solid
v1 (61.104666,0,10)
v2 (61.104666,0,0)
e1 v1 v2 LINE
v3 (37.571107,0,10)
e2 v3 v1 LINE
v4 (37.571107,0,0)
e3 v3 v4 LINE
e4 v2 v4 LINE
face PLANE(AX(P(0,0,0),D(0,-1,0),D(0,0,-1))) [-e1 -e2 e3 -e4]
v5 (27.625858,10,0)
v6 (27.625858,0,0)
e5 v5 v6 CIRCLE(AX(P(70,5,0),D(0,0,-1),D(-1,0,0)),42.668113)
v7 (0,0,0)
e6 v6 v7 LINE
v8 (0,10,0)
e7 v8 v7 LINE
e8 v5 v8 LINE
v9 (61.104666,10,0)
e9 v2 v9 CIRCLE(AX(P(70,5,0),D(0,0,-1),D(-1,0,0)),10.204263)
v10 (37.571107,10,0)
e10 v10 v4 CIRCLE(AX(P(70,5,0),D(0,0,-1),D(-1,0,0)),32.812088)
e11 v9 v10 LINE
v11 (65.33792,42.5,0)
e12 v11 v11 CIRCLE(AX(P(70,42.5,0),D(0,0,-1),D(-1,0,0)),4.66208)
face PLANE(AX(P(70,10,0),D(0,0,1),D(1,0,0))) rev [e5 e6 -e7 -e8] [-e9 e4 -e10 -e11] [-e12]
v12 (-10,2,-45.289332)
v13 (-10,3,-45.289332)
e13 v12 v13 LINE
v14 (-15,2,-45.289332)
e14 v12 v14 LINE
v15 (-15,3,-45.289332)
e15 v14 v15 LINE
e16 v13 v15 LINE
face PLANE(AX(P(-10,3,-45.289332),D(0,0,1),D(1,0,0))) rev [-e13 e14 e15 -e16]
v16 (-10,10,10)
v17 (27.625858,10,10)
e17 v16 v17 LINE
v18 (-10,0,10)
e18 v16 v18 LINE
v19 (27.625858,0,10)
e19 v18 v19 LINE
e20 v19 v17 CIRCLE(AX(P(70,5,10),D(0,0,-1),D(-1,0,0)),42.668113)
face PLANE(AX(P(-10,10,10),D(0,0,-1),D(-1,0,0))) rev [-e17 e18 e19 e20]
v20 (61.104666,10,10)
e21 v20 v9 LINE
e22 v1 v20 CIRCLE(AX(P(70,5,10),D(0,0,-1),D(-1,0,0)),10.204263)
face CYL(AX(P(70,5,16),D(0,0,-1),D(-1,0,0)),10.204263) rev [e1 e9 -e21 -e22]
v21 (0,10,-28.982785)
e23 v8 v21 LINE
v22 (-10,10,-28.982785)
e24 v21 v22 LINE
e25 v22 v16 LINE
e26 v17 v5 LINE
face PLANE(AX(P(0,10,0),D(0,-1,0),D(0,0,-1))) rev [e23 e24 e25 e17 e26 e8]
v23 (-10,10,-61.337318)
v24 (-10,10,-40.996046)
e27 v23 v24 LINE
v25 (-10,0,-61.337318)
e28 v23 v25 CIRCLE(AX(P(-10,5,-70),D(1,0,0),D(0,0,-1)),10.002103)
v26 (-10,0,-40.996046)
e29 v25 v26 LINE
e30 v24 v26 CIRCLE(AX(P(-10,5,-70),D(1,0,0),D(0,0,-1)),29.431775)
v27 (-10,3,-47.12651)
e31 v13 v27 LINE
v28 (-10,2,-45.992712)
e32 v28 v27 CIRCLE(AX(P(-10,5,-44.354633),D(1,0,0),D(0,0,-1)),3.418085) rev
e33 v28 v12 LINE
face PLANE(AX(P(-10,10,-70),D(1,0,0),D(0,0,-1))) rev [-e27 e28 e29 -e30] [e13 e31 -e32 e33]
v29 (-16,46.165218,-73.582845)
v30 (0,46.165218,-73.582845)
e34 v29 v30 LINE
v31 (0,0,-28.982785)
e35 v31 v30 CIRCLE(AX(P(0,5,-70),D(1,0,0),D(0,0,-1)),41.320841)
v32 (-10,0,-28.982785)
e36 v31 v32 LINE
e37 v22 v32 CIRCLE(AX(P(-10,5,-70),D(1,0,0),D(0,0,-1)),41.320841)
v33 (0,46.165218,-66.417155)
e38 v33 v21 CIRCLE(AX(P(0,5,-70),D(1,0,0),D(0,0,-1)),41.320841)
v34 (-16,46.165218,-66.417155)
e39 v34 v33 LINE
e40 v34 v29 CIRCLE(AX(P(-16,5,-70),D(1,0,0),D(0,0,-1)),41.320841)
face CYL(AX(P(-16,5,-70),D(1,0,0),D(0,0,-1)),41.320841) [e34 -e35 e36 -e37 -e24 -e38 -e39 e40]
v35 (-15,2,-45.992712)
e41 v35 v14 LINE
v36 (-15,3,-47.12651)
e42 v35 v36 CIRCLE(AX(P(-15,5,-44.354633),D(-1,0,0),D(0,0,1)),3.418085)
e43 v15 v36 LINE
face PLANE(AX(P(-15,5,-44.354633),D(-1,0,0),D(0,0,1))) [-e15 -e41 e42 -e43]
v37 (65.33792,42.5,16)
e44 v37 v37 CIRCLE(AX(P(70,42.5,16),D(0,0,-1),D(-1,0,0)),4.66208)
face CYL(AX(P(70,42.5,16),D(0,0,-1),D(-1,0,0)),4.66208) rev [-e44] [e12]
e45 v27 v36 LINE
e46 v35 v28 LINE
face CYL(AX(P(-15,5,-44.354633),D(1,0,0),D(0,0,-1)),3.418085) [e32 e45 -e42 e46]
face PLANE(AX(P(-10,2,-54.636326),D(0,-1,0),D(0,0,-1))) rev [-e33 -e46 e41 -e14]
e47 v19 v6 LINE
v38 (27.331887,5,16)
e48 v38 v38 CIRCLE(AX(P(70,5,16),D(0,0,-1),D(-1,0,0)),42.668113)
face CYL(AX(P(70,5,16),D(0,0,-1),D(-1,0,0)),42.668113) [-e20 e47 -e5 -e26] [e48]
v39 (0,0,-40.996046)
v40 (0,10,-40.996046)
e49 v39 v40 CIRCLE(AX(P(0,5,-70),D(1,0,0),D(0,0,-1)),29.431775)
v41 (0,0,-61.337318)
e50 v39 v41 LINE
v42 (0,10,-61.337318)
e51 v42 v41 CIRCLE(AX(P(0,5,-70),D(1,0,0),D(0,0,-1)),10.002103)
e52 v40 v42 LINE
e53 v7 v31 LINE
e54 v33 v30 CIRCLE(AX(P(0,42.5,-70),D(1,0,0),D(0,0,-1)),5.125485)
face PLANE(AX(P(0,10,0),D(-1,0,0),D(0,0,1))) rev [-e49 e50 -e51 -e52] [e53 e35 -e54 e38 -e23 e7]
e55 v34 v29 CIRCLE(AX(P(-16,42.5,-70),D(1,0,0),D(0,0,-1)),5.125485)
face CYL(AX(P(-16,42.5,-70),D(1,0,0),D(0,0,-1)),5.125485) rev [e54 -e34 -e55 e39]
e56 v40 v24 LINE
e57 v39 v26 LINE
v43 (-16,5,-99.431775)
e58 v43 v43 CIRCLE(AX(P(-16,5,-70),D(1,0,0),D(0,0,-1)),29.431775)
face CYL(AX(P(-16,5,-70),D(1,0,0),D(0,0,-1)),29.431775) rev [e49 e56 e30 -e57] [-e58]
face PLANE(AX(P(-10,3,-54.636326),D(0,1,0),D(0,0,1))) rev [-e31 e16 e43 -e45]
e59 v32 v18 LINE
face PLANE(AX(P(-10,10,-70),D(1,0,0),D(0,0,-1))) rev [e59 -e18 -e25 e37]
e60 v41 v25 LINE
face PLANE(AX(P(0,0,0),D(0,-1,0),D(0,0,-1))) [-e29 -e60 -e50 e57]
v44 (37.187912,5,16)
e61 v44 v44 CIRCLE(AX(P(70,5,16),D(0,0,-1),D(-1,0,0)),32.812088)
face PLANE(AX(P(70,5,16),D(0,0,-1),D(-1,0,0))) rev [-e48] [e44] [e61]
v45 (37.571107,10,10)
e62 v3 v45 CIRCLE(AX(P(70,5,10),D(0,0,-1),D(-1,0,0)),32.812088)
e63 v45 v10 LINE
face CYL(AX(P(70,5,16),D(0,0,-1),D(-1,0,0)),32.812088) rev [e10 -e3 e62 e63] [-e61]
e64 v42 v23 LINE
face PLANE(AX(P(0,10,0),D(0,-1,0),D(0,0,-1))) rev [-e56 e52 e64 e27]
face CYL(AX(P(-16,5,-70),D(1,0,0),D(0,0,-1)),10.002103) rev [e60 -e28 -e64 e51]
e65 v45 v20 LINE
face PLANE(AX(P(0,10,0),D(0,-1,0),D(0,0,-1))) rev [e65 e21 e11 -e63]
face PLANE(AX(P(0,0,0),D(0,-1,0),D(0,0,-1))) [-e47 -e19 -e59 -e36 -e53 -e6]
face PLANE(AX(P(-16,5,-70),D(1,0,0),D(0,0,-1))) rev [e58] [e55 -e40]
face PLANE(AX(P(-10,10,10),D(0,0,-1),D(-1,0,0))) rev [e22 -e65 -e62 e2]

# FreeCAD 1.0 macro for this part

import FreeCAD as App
import Part
import Sketcher

V = App.Vector
Q = App.Units.Quantity

doc = App.newDocument("Part")
body = doc.addObject("PartDesign::Body", "Body")

# Sketch on XZ plane
sketch1 = body.newObject("Sketcher::SketchObject", "Sketch")
sketch1.AttachmentSupport = (doc.getObject("XZ_Plane"), [""])
sketch1.MapMode = "FlatFace"
sketch1.addGeometry(Part.LineSegment(V(0, 0, 0), V(0, -70, 0)), False)
sketch1.addGeometry(Part.LineSegment(V(0, -70, 0), V(-10, -70, 0)), False)
sketch1.addGeometry(Part.LineSegment(V(-10, -70, 0), V(-10, 10, 0)), False)
sketch1.addGeometry(Part.LineSegment(V(-10, 10, 0), V(70, 10, 0)), False)
sketch1.addGeometry(Part.LineSegment(V(70, 10, 0), V(70, 0, 0)), False)
sketch1.addGeometry(Part.LineSegment(V(70, 0, 0), V(0, 0, 0)), False)
sketch1.addConstraint(Sketcher.Constraint("Coincident", 0, 2, 1, 1))
sketch1.addConstraint(Sketcher.Constraint("Coincident", 1, 2, 2, 1))
sketch1.addConstraint(Sketcher.Constraint("Coincident", 2, 2, 3, 1))
sketch1.addConstraint(Sketcher.Constraint("Coincident", 3, 2, 4, 1))
sketch1.addConstraint(Sketcher.Constraint("Coincident", 4, 2, 5, 1))
sketch1.addConstraint(Sketcher.Constraint("Coincident", 5, 2, 0, 1))
sketch1.addConstraint(Sketcher.Constraint("Vertical", 0))
sketch1.addConstraint(Sketcher.Constraint("Horizontal", 1))
sketch1.addConstraint(Sketcher.Constraint("Vertical", 2))
sketch1.addConstraint(Sketcher.Constraint("Horizontal", 3))
sketch1.addConstraint(Sketcher.Constraint("Vertical", 4))
sketch1.addConstraint(Sketcher.Constraint("Horizontal", 5))
sketch1.addConstraint(Sketcher.Constraint("Coincident", 5, 2, -1, 1))
sketch1.addConstraint(Sketcher.Constraint("Equal", 5, 0))
sketch1.addConstraint(Sketcher.Constraint("Equal", 3, 2))
sketch1.addConstraint(Sketcher.Constraint("DistanceX", 1, 2, 1, 1, Q("10 mm")))
sketch1.addConstraint(Sketcher.Constraint("DistanceX", 3, 1, 3, 2, Q("80 mm")))
pad1 = body.newObject("PartDesign::Pad", "Pad")
pad1.Profile = sketch1
pad1.Length = 10
pad1.Reversed = True

# Sketch on XY plane
sketch2 = body.newObject("Sketcher::SketchObject", "Sketch001")
sketch2.AttachmentSupport = (doc.getObject("XY_Plane"), [""])
sketch2.MapMode = "FlatFace"
sketch2.AttachmentOffset = App.Placement(V(0, 0, 10), App.Rotation())
sketch2.addGeometry(Part.Circle(V(65, 5, 0), V(0, 0, 1), 5), False)
sketch2.addConstraint(Sketcher.Constraint("Diameter", 0, Q("10 mm")))
sketch2.addConstraint(Sketcher.Constraint("DistanceX", -1, 1, 0, 3, Q("65 mm")))
sketch2.addConstraint(Sketcher.Constraint("DistanceY", -1, 1, 0, 3, Q("5 mm")))
pad2 = body.newObject("PartDesign::Pad", "Pad001")
pad2.Profile = sketch2
pad2.Length = 5

# Sketch on XY plane
sketch3 = body.newObject("Sketcher::SketchObject", "Sketch002")
sketch3.AttachmentSupport = (doc.getObject("XY_Plane"), [""])
sketch3.MapMode = "FlatFace"
sketch3.AttachmentOffset = App.Placement(V(0, 0, 15), App.Rotation())
sketch3.addGeometry(Part.LineSegment(V(55.4, 5.5, 0), V(55.4, 4.5, 0)), False)
sketch3.addGeometry(Part.LineSegment(V(55.4, 4.5, 0), V(68.3, 4.5, 0)), False)
sketch3.addGeometry(Part.LineSegment(V(68.3, 4.5, 0), V(68.3, 5.5, 0)), False)
sketch3.addGeometry(Part.LineSegment(V(68.3, 5.5, 0), V(55.4, 5.5, 0)), False)
sketch3.addConstraint(Sketcher.Constraint("Coincident", 0, 2, 1, 1))
sketch3.addConstraint(Sketcher.Constraint("Coincident", 1, 2, 2, 1))
sketch3.addConstraint(Sketcher.Constraint("Coincident", 2, 2, 3, 1))
sketch3.addConstraint(Sketcher.Constraint("Coincident", 3, 2, 0, 1))
sketch3.addConstraint(Sketcher.Constraint("Vertical", 0))
sketch3.addConstraint(Sketcher.Constraint("Horizontal", 1))
sketch3.addConstraint(Sketcher.Constraint("Vertical", 2))
sketch3.addConstraint(Sketcher.Constraint("Horizontal", 3))
sketch3.addConstraint(Sketcher.Constraint("DistanceY", 0, 2, 0, 1, Q("1 mm")))
sketch3.addConstraint(Sketcher.Constraint("DistanceY", -1, 1, 0, 2, Q("4.5 mm")))
sketch3.addConstraint(Sketcher.Constraint("DistanceX", 1, 1, 1, 2, Q("12.842438 mm")))
sketch3.addConstraint(Sketcher.Constraint("DistanceX", -1, 1, 1, 2, Q("68.27271 mm")))
pocket1 = body.newObject("PartDesign::Pocket", "Pocket")
pocket1.Profile = sketch3
pocket1.Length = 5

# Sketch on YZ plane
sketch4 = body.newObject("Sketcher::SketchObject", "Sketch003")
sketch4.AttachmentSupport = (doc.getObject("YZ_Plane"), [""])
sketch4.MapMode = "FlatFace"
sketch4.AttachmentOffset = App.Placement(V(0, 0, -10), App.Rotation())
sketch4.addGeometry(Part.Circle(V(5, -44.4, 0), V(0, 0, 1), 3.4), False)
sketch4.addConstraint(Sketcher.Constraint("DistanceX", -1, 1, 0, 3, Q("5 mm")))
sketch4.addConstraint(Sketcher.Constraint("Diameter", 0, Q("6.83617 mm")))
sketch4.addConstraint(Sketcher.Constraint("DistanceY", 0, 3, -1, 1, Q("44.354633 mm")))
pad3 = body.newObject("PartDesign::Pad", "Pad002")
pad3.Profile = sketch4
pad3.Length = 5
pad3.Reversed = True

# Sketch on YZ plane
sketch5 = body.newObject("Sketcher::SketchObject", "Sketch004")
sketch5.AttachmentSupport = (doc.getObject("YZ_Plane"), [""])
sketch5.MapMode = "FlatFace"
sketch5.AttachmentOffset = App.Placement(V(0, 0, -15), App.Rotation())
sketch5.addGeometry(Part.LineSegment(V(3, -54.6, 0), V(2, -54.6, 0)), False)
sketch5.addGeometry(Part.LineSegment(V(2, -54.6, 0), V(2, -45.3, 0)), False)
sketch5.addGeometry(Part.LineSegment(V(2, -45.3, 0), V(3, -45.3, 0)), False)
sketch5.addGeometry(Part.LineSegment(V(3, -45.3, 0), V(3, -54.6, 0)), False)
sketch5.addConstraint(Sketcher.Constraint("Coincident", 0, 2, 1, 1))
sketch5.addConstraint(Sketcher.Constraint("Coincident", 1, 2, 2, 1))
sketch5.addConstraint(Sketcher.Constraint("Coincident", 2, 2, 3, 1))
sketch5.addConstraint(Sketcher.Constraint("Coincident", 3, 2, 0, 1))
sketch5.addConstraint(Sketcher.Constraint("Horizontal", 0))
sketch5.addConstraint(Sketcher.Constraint("Vertical", 1))
sketch5.addConstraint(Sketcher.Constraint("Horizontal", 2))
sketch5.addConstraint(Sketcher.Constraint("Vertical", 3))
sketch5.addConstraint(Sketcher.Constraint("DistanceX", 0, 2, 0, 1, Q("1 mm")))
sketch5.addConstraint(Sketcher.Constraint("DistanceX", -1, 1, 0, 2, Q("2 mm")))
sketch5.addConstraint(Sketcher.Constraint("DistanceY", 1, 1, 1, 2, Q("9.346994 mm")))
sketch5.addConstraint(Sketcher.Constraint("DistanceY", 1, 2, -1, 1, Q("45.289332 mm")))
pocket2 = body.newObject("PartDesign::Pocket", "Pocket001")
pocket2.Profile = sketch5
pocket2.Length = 5
pocket2.Reversed = True

# Sketch on XY plane
sketch6 = body.newObject("Sketcher::SketchObject", "Sketch005")
sketch6.AttachmentSupport = (doc.getObject("XY_Plane"), [""])
sketch6.MapMode = "FlatFace"
sketch6.addGeometry(Part.Circle(V(70, 5, 0), V(0, 0, 1), 43), False)
sketch6.addGeometry(Part.Circle(V(70, 5, 0), V(0, 0, 1), 33), False)
sketch6.addConstraint(Sketcher.Constraint("Coincident", 1, 3, 0, 3))
sketch6.addConstraint(Sketcher.Constraint("DistanceX", -1, 1, 0, 3, Q("70 mm")))
sketch6.addConstraint(Sketcher.Constraint("DistanceY", -1, 1, 0, 3, Q("5 mm")))
sketch6.addConstraint(Sketcher.Constraint("Diameter", 0, Q("85.336226 mm")))
sketch6.addConstraint(Sketcher.Constraint("Diameter", 1, Q("65.624175 mm")))
pad4 = body.newObject("PartDesign::Pad", "Pad003")
pad4.Profile = sketch6
pad4.Length = 16

# Sketch on XY plane
sketch7 = body.newObject("Sketcher::SketchObject", "Sketch006")
sketch7.AttachmentSupport = (doc.getObject("XY_Plane"), [""])
sketch7.MapMode = "FlatFace"
sketch7.addGeometry(Part.Circle(V(70, 5, 0), V(0, 0, 1), 10), False)
sketch7.addConstraint(Sketcher.Constraint("DistanceX", -1, 1, 0, 3, Q("70 mm")))
sketch7.addConstraint(Sketcher.Constraint("DistanceY", -1, 1, 0, 3, Q("5 mm")))
sketch7.addConstraint(Sketcher.Constraint("Diameter", 0, Q("20.408525 mm")))
pocket3 = body.newObject("PartDesign::Pocket", "Pocket002")
pocket3.Profile = sketch7
pocket3.Length = 16
pocket3.Reversed = True

# Sketch on YZ plane
sketch8 = body.newObject("Sketcher::SketchObject", "Sketch007")
sketch8.AttachmentSupport = (doc.getObject("YZ_Plane"), [""])
sketch8.MapMode = "FlatFace"
sketch8.addGeometry(Part.Circle(V(5, -70, 0), V(0, 0, 1), 41), False)
sketch8.addGeometry(Part.Circle(V(5, -70, 0), V(0, 0, 1), 29), False)
sketch8.addConstraint(Sketcher.Constraint("Coincident", 1, 3, 0, 3))
sketch8.addConstraint(Sketcher.Constraint("DistanceX", -1, 1, 0, 3, Q("5 mm")))
sketch8.addConstraint(Sketcher.Constraint("DistanceY", 0, 3, -1, 1, Q("70 mm")))
sketch8.addConstraint(Sketcher.Constraint("Diameter", 1, Q("58.86355 mm")))
sketch8.addConstraint(Sketcher.Constraint("Diameter", 0, Q("82.641682 mm")))
pad5 = body.newObject("PartDesign::Pad", "Pad004")
pad5.Profile = sketch8
pad5.Length = 16
pad5.Reversed = True

# Sketch on YZ plane
sketch9 = body.newObject("Sketcher::SketchObject", "Sketch008")
sketch9.AttachmentSupport = (doc.getObject("YZ_Plane"), [""])
sketch9.MapMode = "FlatFace"
sketch9.addGeometry(Part.Circle(V(5, -70, 0), V(0, 0, 1), 10), False)
sketch9.addConstraint(Sketcher.Constraint("DistanceX", -1, 1, 0, 3, Q("5 mm")))
sketch9.addConstraint(Sketcher.Constraint("DistanceY", 0, 3, -1, 1, Q("70 mm")))
sketch9.addConstraint(Sketcher.Constraint("Diameter", 0, Q("20.004206 mm")))
pocket4 = body.newObject("PartDesign::Pocket", "Pocket003")
pocket4.Profile = sketch9
pocket4.Length = 16

# Sketch on YZ plane
sketch10 = body.newObject("Sketcher::SketchObject", "Sketch009")
sketch10.AttachmentSupport = (doc.getObject("YZ_Plane"), [""])
sketch10.MapMode = "FlatFace"
sketch10.addGeometry(Part.Circle(V(42, -70, 0), V(0, 0, 1), 5), False)
sketch10.addConstraint(Sketcher.Constraint("DistanceY", 0, 3, -1, 1, Q("70 mm")))
sketch10.addConstraint(Sketcher.Constraint("DistanceX", -1, 1, 0, 3, Q("42.5 mm")))
sketch10.addConstraint(Sketcher.Constraint("Diameter", 0, Q("10.250971 mm")))
pocket5 = body.newObject("PartDesign::Pocket", "Pocket004")
pocket5.Profile = sketch10
pocket5.Length = 16

# Sketch on XY plane
sketch11 = body.newObject("Sketcher::SketchObject", "Sketch010")
sketch11.AttachmentSupport = (doc.getObject("XY_Plane"), [""])
sketch11.MapMode = "FlatFace"
sketch11.addGeometry(Part.Circle(V(70, 42.5, 0), V(0, 0, 1), 4.7), False)
sketch11.addConstraint(Sketcher.Constraint("DistanceX", -1, 1, 0, 3, Q("70 mm")))
sketch11.addConstraint(Sketcher.Constraint("DistanceY", -1, 1, 0, 3, Q("42.5 mm")))
sketch11.addConstraint(Sketcher.Constraint("Diameter", 0, Q("9.32416 mm")))
pocket6 = body.newObject("PartDesign::Pocket", "Pocket005")
pocket6.Profile = sketch11
pocket6.Length = 16
pocket6.Reversed = True

doc.recompute()
